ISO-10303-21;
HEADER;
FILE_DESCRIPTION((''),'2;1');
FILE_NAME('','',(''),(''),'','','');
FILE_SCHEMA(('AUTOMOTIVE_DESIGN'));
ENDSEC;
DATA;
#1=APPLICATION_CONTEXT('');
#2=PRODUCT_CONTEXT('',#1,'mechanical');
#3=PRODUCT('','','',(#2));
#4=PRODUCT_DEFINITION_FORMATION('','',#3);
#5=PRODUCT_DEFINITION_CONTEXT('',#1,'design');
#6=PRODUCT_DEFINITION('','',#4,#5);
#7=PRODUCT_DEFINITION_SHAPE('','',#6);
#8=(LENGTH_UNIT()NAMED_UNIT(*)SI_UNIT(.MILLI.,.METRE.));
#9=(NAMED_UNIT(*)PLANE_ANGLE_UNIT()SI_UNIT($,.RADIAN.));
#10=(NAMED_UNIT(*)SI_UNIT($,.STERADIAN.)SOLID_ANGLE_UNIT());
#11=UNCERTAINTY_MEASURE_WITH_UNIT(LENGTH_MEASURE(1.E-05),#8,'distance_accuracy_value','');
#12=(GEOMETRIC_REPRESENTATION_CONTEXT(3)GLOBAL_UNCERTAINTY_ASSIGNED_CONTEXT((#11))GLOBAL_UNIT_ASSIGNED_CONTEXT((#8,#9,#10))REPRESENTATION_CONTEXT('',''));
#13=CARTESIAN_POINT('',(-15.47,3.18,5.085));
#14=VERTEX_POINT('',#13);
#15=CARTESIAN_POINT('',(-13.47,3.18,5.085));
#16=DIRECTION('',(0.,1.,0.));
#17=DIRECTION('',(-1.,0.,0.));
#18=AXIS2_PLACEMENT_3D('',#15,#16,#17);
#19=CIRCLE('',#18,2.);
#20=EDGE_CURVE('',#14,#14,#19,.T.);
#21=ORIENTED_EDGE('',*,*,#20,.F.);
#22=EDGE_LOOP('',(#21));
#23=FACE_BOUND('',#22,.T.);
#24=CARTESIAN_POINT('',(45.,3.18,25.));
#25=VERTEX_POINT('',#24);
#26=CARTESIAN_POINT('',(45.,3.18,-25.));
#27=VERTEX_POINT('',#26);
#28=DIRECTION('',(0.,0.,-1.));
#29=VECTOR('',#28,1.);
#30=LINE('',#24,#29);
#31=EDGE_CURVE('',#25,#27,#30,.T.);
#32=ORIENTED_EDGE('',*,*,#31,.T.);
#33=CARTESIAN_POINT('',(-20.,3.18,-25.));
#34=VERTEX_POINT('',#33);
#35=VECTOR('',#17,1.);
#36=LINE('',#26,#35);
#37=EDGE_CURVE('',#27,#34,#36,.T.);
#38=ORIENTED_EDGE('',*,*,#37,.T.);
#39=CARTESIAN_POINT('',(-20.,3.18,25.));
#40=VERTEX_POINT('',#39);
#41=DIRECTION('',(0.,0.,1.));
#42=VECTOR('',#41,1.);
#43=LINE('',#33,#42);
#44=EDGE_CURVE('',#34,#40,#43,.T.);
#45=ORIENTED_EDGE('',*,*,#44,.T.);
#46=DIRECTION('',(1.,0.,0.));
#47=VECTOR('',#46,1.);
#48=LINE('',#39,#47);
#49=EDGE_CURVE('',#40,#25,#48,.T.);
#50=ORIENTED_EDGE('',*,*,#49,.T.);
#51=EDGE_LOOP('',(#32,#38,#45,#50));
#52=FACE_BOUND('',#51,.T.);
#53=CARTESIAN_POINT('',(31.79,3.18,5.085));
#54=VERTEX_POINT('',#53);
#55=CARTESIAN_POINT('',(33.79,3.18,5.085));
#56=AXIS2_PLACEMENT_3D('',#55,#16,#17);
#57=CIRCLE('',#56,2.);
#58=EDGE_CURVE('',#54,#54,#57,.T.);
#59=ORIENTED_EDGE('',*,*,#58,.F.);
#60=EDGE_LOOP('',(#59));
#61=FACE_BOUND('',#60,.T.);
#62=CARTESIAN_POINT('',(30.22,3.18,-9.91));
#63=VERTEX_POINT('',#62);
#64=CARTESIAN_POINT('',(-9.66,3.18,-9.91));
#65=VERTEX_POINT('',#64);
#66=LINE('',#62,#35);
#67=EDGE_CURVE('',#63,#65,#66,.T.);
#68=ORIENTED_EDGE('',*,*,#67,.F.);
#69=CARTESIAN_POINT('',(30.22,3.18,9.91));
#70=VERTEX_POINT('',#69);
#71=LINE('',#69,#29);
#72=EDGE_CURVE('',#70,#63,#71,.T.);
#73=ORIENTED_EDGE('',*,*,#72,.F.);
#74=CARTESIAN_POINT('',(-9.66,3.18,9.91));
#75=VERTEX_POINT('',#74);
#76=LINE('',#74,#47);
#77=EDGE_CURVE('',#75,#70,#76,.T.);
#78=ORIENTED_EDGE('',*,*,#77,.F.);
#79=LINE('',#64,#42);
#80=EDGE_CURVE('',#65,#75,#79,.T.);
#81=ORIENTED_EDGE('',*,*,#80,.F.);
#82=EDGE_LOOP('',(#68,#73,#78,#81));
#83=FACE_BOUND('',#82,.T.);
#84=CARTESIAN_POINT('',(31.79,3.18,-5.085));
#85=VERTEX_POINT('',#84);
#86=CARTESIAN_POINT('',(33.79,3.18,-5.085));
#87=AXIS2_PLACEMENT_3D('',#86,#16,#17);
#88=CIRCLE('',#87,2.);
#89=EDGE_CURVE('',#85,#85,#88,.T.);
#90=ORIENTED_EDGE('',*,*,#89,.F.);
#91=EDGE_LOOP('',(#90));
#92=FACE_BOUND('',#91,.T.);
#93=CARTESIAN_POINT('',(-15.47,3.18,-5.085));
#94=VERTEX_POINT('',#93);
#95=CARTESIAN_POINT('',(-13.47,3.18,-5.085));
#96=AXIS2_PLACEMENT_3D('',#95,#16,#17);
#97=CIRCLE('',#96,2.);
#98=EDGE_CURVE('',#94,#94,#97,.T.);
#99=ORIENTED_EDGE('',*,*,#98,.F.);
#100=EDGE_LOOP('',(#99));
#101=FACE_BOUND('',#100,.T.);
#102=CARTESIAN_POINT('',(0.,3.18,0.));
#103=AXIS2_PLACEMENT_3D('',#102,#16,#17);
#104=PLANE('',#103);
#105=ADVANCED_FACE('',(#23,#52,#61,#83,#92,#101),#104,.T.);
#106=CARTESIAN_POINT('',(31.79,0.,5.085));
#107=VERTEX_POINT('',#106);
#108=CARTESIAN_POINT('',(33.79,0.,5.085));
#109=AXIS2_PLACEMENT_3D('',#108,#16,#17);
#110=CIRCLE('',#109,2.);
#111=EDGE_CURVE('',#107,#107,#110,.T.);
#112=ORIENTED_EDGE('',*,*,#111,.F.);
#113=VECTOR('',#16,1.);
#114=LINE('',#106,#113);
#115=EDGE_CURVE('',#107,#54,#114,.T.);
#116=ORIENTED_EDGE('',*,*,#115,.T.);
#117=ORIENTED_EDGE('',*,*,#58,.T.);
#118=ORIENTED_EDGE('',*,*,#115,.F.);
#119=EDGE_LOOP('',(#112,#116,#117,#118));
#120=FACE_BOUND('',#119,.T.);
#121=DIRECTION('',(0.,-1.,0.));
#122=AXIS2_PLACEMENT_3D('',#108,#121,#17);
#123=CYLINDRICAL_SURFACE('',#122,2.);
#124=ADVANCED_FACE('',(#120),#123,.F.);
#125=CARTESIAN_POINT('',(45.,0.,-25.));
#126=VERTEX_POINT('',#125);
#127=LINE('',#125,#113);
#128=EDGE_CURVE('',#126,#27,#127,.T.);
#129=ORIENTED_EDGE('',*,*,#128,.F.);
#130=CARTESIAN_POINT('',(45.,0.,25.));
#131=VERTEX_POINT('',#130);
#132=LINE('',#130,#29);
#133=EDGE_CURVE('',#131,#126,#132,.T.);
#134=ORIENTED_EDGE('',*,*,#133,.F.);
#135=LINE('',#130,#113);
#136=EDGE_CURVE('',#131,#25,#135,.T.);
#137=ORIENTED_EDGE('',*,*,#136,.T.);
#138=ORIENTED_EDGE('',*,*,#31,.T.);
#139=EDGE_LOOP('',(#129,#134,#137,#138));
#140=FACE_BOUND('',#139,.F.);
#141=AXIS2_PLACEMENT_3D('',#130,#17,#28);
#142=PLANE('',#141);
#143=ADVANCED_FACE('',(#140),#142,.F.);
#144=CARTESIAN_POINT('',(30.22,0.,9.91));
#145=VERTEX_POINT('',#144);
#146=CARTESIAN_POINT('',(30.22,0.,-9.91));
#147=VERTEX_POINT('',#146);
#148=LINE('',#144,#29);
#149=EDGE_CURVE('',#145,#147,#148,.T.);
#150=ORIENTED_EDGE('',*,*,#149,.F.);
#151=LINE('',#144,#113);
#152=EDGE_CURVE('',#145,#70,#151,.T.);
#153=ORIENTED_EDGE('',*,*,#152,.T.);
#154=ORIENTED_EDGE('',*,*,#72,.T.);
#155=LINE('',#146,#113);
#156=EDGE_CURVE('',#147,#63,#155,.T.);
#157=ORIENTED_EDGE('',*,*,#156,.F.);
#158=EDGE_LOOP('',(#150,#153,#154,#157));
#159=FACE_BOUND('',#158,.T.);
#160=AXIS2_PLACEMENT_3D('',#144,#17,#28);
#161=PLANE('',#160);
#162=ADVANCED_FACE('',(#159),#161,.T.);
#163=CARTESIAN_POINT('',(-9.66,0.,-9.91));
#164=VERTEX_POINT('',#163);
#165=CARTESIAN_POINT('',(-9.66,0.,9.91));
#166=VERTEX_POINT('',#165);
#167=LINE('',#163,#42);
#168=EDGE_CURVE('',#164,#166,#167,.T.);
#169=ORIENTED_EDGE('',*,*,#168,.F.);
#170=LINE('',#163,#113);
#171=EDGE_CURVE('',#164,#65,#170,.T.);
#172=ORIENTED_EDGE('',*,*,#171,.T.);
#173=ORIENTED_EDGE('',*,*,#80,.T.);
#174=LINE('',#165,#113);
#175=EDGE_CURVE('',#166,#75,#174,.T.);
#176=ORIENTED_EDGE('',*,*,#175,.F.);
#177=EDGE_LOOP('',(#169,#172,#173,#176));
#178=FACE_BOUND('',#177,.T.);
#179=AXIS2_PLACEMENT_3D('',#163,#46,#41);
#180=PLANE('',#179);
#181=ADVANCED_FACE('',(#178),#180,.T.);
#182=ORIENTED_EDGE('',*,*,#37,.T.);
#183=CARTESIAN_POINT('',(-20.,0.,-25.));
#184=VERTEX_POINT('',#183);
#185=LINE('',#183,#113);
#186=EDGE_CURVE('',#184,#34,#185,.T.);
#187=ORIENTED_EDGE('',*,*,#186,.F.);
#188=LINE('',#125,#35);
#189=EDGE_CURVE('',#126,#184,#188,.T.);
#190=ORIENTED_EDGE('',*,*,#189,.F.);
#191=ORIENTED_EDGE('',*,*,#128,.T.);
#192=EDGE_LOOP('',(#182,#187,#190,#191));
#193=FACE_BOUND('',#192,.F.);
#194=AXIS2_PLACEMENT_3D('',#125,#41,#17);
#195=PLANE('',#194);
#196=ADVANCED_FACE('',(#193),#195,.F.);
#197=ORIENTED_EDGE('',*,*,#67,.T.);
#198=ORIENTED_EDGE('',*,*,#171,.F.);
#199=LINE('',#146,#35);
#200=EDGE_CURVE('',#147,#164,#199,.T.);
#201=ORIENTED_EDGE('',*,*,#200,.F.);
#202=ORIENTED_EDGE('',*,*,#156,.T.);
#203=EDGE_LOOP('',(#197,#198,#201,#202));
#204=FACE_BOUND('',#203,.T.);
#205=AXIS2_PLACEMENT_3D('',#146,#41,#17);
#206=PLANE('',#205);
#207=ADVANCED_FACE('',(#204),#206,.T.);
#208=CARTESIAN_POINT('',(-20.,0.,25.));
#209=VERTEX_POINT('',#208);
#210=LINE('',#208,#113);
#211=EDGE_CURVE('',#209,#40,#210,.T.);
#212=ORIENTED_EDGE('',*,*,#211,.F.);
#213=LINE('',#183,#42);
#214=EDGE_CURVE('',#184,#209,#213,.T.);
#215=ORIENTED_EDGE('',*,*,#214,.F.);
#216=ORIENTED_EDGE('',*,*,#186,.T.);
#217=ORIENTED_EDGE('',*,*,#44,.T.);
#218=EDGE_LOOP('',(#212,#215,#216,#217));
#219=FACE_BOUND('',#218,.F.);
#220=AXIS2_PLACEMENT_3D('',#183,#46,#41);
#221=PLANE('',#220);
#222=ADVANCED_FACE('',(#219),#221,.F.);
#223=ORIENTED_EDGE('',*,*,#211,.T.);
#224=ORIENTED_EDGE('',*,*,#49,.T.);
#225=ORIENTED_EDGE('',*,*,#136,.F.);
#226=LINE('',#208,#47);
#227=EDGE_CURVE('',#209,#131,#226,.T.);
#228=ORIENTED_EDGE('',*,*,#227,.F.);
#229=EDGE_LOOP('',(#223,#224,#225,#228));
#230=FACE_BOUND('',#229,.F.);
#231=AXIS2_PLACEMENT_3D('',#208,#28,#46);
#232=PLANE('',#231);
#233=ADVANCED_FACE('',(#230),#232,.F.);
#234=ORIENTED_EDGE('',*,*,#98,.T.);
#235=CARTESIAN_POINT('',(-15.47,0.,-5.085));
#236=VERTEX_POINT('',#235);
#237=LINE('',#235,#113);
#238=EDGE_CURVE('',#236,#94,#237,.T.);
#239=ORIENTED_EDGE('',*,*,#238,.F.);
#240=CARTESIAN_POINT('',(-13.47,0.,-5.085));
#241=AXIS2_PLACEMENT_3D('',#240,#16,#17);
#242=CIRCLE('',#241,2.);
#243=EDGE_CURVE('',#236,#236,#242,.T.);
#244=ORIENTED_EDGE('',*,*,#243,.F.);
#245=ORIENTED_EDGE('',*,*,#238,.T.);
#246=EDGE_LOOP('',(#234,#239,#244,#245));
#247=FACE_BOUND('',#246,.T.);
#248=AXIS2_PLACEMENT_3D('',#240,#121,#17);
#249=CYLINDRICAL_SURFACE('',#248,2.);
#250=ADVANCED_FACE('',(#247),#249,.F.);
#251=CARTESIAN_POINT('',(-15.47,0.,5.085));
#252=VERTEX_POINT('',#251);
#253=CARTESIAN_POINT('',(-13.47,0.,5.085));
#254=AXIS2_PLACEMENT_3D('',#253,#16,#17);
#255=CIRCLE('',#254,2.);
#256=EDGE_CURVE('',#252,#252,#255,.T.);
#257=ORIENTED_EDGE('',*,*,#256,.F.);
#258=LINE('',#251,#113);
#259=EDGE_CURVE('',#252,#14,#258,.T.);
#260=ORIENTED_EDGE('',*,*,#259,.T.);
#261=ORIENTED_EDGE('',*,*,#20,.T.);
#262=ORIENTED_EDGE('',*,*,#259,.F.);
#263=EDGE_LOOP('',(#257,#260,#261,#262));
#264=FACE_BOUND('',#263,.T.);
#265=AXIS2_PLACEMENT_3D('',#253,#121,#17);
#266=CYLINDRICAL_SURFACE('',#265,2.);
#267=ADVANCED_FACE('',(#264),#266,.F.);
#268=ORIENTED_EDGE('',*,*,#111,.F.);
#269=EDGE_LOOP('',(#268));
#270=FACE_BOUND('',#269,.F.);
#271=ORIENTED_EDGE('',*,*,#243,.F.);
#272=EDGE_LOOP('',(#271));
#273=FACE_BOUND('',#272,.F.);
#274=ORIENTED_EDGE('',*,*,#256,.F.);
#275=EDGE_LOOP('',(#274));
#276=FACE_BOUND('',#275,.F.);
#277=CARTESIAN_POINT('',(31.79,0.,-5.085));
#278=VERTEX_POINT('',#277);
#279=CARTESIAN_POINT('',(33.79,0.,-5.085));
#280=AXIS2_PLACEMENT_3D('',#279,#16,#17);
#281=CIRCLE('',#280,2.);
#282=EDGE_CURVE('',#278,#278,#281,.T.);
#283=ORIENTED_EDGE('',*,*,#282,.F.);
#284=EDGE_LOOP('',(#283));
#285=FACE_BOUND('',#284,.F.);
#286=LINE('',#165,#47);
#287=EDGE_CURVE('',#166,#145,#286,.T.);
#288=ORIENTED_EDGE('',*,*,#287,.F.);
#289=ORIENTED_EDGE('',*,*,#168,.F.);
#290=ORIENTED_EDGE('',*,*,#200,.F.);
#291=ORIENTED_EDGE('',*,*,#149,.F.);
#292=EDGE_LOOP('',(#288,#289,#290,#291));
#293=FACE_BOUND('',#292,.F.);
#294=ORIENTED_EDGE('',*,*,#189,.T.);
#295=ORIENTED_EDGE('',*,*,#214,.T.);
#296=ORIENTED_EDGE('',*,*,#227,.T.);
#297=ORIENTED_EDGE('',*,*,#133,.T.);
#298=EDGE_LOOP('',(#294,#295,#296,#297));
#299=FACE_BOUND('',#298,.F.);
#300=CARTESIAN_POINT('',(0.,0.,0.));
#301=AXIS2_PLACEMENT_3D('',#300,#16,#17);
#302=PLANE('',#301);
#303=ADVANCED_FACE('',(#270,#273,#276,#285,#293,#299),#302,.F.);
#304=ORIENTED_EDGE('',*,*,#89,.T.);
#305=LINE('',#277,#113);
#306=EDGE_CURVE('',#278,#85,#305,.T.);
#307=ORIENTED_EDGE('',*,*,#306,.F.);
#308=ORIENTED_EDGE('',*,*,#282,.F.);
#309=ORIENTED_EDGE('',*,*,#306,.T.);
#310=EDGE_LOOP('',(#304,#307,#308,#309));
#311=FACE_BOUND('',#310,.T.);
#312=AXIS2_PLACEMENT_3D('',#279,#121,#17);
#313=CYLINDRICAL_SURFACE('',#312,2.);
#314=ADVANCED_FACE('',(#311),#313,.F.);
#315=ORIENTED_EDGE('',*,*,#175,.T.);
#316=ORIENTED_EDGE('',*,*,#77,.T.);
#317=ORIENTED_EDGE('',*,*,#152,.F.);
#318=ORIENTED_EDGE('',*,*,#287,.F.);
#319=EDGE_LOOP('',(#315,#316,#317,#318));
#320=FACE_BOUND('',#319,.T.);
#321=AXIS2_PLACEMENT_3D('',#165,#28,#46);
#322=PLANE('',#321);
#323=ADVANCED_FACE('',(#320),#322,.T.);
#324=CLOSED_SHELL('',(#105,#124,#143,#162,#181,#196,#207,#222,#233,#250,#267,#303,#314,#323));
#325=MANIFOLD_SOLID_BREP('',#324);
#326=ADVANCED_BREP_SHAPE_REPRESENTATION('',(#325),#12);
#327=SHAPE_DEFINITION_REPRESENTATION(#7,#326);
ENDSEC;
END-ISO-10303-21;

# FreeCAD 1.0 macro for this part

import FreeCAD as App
import Part
import Sketcher

V = App.Vector


def add_polygon(sketch, points):
    """Adds a closed chain of lines whose ends are joined by coincident constraints."""
    first, n = sketch.GeometryCount, len(points)
    for a, b in zip(points, points[1:] + points[:1]):
        sketch.addGeometry(Part.LineSegment(App.Vector(*a, 0), App.Vector(*b, 0)), False)
    for i in range(n):
        sketch.addConstraint(Sketcher.Constraint("Coincident", first + i, 2, first + (i + 1) % n, 1))

doc = App.newDocument("Part")
body = doc.addObject("PartDesign::Body", "Body")

sketch1 = body.newObject("Sketcher::SketchObject", "Sketch")
sketch1.AttachmentSupport = (doc.getObject("XZ_Plane"), [""])
sketch1.MapMode = "FlatFace"
add_polygon(sketch1, [(-20, -25), (-20, 25), (45, 25), (45, -25)])
sketch1.addGeometry(Part.Circle(V(33.79, -5.085, 0), V(0, 0, 1), 2), False)
sketch1.addGeometry(Part.Circle(V(-13.47, -5.085, 0), V(0, 0, 1), 2), False)
sketch1.addGeometry(Part.Circle(V(33.79, 5.085, 0), V(0, 0, 1), 2), False)
add_polygon(sketch1, [(30.22, 9.91), (-9.66, 9.91), (-9.66, -9.91), (30.22, -9.91)])
sketch1.addGeometry(Part.Circle(V(-13.47, 5.085, 0), V(0, 0, 1), 2), False)
sketch1.addConstraint(Sketcher.Constraint("Vertical", 0))
sketch1.addConstraint(Sketcher.Constraint("Horizontal", 1))
sketch1.addConstraint(Sketcher.Constraint("Vertical", 2))
sketch1.addConstraint(Sketcher.Constraint("Horizontal", 3))
sketch1.addConstraint(Sketcher.Constraint("Horizontal", 7))
sketch1.addConstraint(Sketcher.Constraint("Vertical", 8))
sketch1.addConstraint(Sketcher.Constraint("Horizontal", 9))
sketch1.addConstraint(Sketcher.Constraint("Vertical", 10))
sketch1.addConstraint(Sketcher.Constraint("Equal", 4, 5))
sketch1.addConstraint(Sketcher.Constraint("Equal", 5, 6))
sketch1.addConstraint(Sketcher.Constraint("Equal", 6, 11))
sketch1.addConstraint(Sketcher.Constraint("Symmetric", 4, 3, 6, 3, -1))
sketch1.addConstraint(Sketcher.Constraint("Symmetric", 5, 3, 11, 3, -1))
sketch1.addConstraint(Sketcher.Constraint("Horizontal", 4, 3, 5, 3))
sketch1.addConstraint(Sketcher.Constraint("Diameter", 4, 4.0))
sketch1.addConstraint(Sketcher.Constraint("DistanceX", 1, 1, 1, 2, 65.0))
sketch1.addConstraint(Sketcher.Constraint("DistanceY", 0, 1, 0, 2, 50.0))
sketch1.addConstraint(Sketcher.Constraint("DistanceX", 0, 2, -1, 1, 20.0))
sketch1.addConstraint(Sketcher.Constraint("DistanceY", -1, 1, 0, 2, 25.0))
sketch1.addConstraint(Sketcher.Constraint("DistanceX", 7, 2, 7, 1, 39.88))
sketch1.addConstraint(Sketcher.Constraint("DistanceY", 8, 2, 8, 1, 19.82))
sketch1.addConstraint(Sketcher.Constraint("DistanceX", -1, 1, 4, 3, 33.79))
sketch1.addConstraint(Sketcher.Constraint("DistanceX", 5, 3, -1, 1, 13.47))
sketch1.addConstraint(Sketcher.Constraint("DistanceX", 7, 2, -1, 1, 9.66))
sketch1.addConstraint(Sketcher.Constraint("DistanceY", -1, 1, 7, 2, 9.91))
sketch1.addConstraint(Sketcher.Constraint("DistanceY", 4, 3, 6, 3, 10.17))
pad1 = body.newObject("PartDesign::Pad", "Pad")
pad1.Profile = sketch1
pad1.Length = 3.18
pad1.Reversed = True

doc.recompute()
